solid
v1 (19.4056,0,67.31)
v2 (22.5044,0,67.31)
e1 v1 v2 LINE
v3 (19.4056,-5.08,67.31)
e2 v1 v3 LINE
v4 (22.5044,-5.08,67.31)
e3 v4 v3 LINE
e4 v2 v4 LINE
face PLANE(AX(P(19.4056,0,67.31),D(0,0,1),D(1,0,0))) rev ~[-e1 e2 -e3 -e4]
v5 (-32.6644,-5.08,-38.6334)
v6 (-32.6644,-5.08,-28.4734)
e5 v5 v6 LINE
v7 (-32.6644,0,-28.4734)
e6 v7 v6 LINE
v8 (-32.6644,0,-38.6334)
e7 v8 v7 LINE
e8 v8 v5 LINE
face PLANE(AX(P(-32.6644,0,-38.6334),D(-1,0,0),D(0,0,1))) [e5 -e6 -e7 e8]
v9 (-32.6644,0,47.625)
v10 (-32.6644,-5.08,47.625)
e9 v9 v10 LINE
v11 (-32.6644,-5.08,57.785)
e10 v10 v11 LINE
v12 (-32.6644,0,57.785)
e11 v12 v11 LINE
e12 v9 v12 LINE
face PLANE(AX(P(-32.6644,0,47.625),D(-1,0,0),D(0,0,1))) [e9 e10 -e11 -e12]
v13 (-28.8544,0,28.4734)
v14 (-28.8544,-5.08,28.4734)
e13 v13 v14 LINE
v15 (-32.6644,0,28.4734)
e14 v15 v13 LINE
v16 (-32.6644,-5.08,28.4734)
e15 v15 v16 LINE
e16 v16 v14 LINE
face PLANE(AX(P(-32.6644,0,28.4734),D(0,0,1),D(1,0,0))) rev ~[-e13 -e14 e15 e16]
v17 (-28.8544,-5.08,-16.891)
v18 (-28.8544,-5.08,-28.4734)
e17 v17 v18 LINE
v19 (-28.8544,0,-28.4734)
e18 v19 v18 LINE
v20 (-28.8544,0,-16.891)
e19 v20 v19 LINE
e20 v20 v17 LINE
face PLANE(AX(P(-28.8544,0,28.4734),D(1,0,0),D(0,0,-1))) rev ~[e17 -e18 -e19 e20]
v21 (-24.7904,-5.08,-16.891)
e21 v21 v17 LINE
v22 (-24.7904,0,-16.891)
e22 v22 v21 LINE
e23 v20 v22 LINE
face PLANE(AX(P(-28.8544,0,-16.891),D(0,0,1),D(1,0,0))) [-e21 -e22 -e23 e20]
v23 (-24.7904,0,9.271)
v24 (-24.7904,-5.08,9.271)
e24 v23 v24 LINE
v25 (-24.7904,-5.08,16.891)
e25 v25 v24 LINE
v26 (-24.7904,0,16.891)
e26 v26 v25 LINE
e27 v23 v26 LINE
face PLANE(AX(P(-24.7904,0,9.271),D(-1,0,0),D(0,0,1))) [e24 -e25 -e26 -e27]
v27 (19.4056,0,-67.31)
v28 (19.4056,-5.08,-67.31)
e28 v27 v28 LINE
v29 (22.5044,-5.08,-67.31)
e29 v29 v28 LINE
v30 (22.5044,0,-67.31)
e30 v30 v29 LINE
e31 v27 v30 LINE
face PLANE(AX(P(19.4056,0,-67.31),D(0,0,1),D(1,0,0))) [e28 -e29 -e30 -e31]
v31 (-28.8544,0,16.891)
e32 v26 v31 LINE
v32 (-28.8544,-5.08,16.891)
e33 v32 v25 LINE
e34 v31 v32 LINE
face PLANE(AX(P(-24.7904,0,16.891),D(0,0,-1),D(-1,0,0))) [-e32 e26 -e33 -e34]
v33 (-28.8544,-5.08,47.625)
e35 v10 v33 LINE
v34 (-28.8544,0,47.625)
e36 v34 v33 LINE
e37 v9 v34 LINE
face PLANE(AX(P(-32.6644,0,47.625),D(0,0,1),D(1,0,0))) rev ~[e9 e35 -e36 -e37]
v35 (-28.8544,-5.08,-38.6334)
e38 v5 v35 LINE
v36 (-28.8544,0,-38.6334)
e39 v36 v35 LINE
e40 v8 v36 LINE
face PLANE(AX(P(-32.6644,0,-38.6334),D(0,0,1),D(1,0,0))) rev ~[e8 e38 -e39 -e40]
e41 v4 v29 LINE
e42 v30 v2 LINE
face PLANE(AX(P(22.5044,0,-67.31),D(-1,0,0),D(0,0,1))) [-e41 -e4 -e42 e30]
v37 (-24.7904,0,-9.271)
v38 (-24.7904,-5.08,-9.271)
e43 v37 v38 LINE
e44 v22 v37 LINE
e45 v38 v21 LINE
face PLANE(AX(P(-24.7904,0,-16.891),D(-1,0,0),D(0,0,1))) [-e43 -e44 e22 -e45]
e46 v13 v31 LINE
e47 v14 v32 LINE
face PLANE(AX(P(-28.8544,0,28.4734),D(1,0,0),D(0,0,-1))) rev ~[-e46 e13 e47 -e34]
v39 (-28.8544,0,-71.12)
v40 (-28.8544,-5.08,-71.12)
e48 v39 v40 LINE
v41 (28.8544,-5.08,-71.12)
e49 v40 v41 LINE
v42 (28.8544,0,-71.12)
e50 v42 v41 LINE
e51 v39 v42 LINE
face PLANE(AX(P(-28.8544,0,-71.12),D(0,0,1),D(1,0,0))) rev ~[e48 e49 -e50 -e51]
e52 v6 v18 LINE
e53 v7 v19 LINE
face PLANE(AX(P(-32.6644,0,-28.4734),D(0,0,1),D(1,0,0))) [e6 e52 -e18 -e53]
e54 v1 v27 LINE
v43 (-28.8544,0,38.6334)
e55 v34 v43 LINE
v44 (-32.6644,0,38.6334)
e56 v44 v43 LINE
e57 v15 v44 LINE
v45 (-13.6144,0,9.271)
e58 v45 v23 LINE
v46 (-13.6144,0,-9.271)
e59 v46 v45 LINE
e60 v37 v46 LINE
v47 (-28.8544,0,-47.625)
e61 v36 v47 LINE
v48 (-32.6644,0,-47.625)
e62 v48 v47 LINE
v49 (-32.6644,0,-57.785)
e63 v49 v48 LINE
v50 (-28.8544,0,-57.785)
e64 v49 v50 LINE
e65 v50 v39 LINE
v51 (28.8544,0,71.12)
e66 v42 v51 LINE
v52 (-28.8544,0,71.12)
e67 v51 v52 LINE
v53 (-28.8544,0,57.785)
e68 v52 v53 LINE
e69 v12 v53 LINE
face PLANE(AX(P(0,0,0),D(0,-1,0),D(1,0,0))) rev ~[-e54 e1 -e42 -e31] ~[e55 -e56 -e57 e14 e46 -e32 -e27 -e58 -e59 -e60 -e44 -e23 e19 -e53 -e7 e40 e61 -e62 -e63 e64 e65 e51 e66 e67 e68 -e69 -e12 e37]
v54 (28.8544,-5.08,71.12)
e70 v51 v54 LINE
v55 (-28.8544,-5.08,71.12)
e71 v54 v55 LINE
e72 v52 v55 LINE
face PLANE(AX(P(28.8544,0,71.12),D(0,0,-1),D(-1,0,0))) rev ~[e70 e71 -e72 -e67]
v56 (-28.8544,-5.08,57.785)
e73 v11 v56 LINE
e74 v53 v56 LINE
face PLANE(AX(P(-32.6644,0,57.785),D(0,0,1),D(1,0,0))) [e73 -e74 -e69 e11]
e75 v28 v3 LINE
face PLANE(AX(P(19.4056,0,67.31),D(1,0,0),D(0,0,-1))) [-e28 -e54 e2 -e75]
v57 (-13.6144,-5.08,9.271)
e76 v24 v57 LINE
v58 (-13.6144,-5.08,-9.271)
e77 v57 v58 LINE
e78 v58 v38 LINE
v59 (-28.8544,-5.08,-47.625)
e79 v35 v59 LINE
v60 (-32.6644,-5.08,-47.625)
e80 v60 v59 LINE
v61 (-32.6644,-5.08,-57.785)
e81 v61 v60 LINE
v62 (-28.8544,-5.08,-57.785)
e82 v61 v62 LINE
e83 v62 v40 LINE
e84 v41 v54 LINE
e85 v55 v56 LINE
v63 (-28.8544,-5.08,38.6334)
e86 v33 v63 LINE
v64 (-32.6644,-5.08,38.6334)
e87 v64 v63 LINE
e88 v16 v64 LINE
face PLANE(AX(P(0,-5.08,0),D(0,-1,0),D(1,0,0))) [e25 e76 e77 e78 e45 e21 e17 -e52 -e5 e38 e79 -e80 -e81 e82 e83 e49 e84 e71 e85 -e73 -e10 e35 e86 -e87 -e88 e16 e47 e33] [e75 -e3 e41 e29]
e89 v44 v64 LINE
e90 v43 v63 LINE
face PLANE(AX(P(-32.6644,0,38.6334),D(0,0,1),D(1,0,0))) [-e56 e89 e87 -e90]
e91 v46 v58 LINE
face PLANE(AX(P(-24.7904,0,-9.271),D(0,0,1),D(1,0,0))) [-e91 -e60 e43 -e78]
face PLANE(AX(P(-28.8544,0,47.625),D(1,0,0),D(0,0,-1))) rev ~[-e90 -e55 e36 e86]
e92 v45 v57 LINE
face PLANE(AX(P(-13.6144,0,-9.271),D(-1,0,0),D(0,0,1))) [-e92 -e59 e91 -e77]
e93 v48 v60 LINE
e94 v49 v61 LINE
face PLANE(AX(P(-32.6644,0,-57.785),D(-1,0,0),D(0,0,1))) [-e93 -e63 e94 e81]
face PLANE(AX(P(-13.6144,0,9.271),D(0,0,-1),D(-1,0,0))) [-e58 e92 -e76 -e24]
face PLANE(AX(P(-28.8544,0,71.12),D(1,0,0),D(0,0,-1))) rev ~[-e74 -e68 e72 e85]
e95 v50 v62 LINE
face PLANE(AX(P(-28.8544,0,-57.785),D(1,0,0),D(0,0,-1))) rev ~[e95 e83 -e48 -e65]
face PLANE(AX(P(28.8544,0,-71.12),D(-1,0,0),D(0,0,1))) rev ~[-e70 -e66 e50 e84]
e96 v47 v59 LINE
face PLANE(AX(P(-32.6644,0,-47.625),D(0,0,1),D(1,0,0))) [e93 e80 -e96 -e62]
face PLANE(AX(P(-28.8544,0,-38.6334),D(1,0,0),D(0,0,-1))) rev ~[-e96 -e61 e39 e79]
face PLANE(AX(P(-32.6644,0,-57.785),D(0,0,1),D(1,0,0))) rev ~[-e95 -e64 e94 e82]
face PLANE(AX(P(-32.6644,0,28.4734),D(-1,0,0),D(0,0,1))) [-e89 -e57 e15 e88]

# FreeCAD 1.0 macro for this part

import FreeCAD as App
import Part
import Sketcher
from FreeCAD import Vector
Q = App.Units.Quantity

doc = App.newDocument("Part")
params = doc.addObject("Spreadsheet::Sheet", "Params")
for row, (alias, value) in enumerate([
    ("sketch1_height", "0.4 in"),
    ("sketch1_height2", "5.6 in"),
    ("sketch1_width", "0.15 in"),
    ("sketch1_width2", "2.272 in"),
    ("sketch1_height3", "0.525 in"),
    ("pad1_length", "0.2 in"),
    ("sketch2_height", "5.3 in"),
    ("sketch2_height2", "0.3 in"),
    ("sketch2_width", "0.44 in"),
    ("sketch2_width2", "0.16 in"),
    ("sketch2_height3", "0.73 in"),
    ("pocket1_length", "1.31 in"),
], start=1):
    params.set(f"A{row}", alias)
    params.set(f"B{row}", "=" + value)
    params.setAlias(f"B{row}", alias)

body = doc.addObject("PartDesign::Body", "Body")

sketch1 = body.newObject("Sketcher::SketchObject", "Sketch")
sketch1.AttachmentSupport = (doc.getObject("XZ_Plane"), [""])
sketch1.MapMode = "FlatFace"
sketch1.addGeometry([
    Part.LineSegment(Vector(28.9, 71.1, 0), Vector(-28.9, 71.1, 0)),
    Part.LineSegment(Vector(-28.9, 71.1, 0), Vector(-28.9, 57.8, 0)),
    Part.LineSegment(Vector(-28.9, 57.8, 0), Vector(-32.7, 57.8, 0)),
    Part.LineSegment(Vector(-32.7, 57.8, 0), Vector(-32.7, 47.6, 0)),
    Part.LineSegment(Vector(-32.7, 47.6, 0), Vector(-28.9, 47.6, 0)),
    Part.LineSegment(Vector(-28.9, 47.6, 0), Vector(-28.9, 38.6, 0)),
    Part.LineSegment(Vector(-28.9, 38.6, 0), Vector(-32.7, 38.6, 0)),
    Part.LineSegment(Vector(-32.7, 38.6, 0), Vector(-32.7, 28.5, 0)),
    Part.LineSegment(Vector(-32.7, 28.5, 0), Vector(-28.9, 28.5, 0)),
    Part.LineSegment(Vector(-28.9, 28.5, 0), Vector(-28.9, -28.5, 0)),
    Part.LineSegment(Vector(-28.9, -28.5, 0), Vector(-32.7, -28.5, 0)),
    Part.LineSegment(Vector(-32.7, -28.5, 0), Vector(-32.7, -38.6, 0)),
    Part.LineSegment(Vector(-32.7, -38.6, 0), Vector(-28.9, -38.6, 0)),
    Part.LineSegment(Vector(-28.9, -38.6, 0), Vector(-28.9, -47.6, 0)),
    Part.LineSegment(Vector(-28.9, -47.6, 0), Vector(-32.7, -47.6, 0)),
    Part.LineSegment(Vector(-32.7, -47.6, 0), Vector(-32.7, -57.8, 0)),
    Part.LineSegment(Vector(-32.7, -57.8, 0), Vector(-28.9, -57.8, 0)),
    Part.LineSegment(Vector(-28.9, -57.8, 0), Vector(-28.9, -71.1, 0)),
    Part.LineSegment(Vector(-28.9, -71.1, 0), Vector(28.9, -71.1, 0)),
    Part.LineSegment(Vector(28.9, -71.1, 0), Vector(28.9, 71.1, 0)),
], False)
sketch1.addConstraint([
    Sketcher.Constraint("Coincident", 0, 2, 1, 1),
    Sketcher.Constraint("Coincident", 1, 2, 2, 1),
    Sketcher.Constraint("Coincident", 2, 2, 3, 1),
    Sketcher.Constraint("Coincident", 3, 2, 4, 1),
    Sketcher.Constraint("Coincident", 4, 2, 5, 1),
    Sketcher.Constraint("Coincident", 5, 2, 6, 1),
    Sketcher.Constraint("Coincident", 6, 2, 7, 1),
    Sketcher.Constraint("Coincident", 7, 2, 8, 1),
    Sketcher.Constraint("Coincident", 8, 2, 9, 1),
    Sketcher.Constraint("Coincident", 9, 2, 10, 1),
    Sketcher.Constraint("Coincident", 10, 2, 11, 1),
    Sketcher.Constraint("Coincident", 11, 2, 12, 1),
    Sketcher.Constraint("Coincident", 12, 2, 13, 1),
    Sketcher.Constraint("Coincident", 13, 2, 14, 1),
    Sketcher.Constraint("Coincident", 14, 2, 15, 1),
    Sketcher.Constraint("Coincident", 15, 2, 16, 1),
    Sketcher.Constraint("Coincident", 16, 2, 17, 1),
    Sketcher.Constraint("Coincident", 17, 2, 18, 1),
    Sketcher.Constraint("Coincident", 18, 2, 19, 1),
    Sketcher.Constraint("Coincident", 19, 2, 0, 1),
    Sketcher.Constraint("Horizontal", 0),
    Sketcher.Constraint("Vertical", 1),
    Sketcher.Constraint("Horizontal", 2),
    Sketcher.Constraint("Vertical", 3),
    Sketcher.Constraint("Horizontal", 4),
    Sketcher.Constraint("Vertical", 5),
    Sketcher.Constraint("Horizontal", 6),
    Sketcher.Constraint("Vertical", 7),
    Sketcher.Constraint("Horizontal", 8),
    Sketcher.Constraint("Vertical", 9),
    Sketcher.Constraint("Horizontal", 10),
    Sketcher.Constraint("Vertical", 11),
    Sketcher.Constraint("Horizontal", 12),
    Sketcher.Constraint("Vertical", 13),
    Sketcher.Constraint("Horizontal", 14),
    Sketcher.Constraint("Vertical", 15),
    Sketcher.Constraint("Horizontal", 16),
    Sketcher.Constraint("Vertical", 17),
    Sketcher.Constraint("Horizontal", 18),
    Sketcher.Constraint("Vertical", 19),
    Sketcher.Constraint("Symmetric", 0, 2, 18, 2, -1, 1),
    Sketcher.Constraint("Symmetric", 7, 2, 10, 2, -1),
    Sketcher.Constraint("Symmetric", 5, 2, 12, 2, -1),
    Sketcher.Constraint("Symmetric", 3, 2, 14, 2, -1),
    Sketcher.Constraint("Symmetric", 1, 2, 16, 2, -1),
    Sketcher.Constraint("Vertical", 1, 2, 4, 2),
    Sketcher.Constraint("Vertical", 3, 2, 6, 2),
    Sketcher.Constraint("Vertical", 5, 2, 8, 2),
    Sketcher.Constraint("Equal", 3, 7),
    Sketcher.Constraint("DistanceY", 3, 2, 3, 1, Q("0.4 in")),
    Sketcher.Constraint("DistanceY", 19, 1, 19, 2, Q("5.6 in")),
    Sketcher.Constraint("DistanceX", 2, 2, 2, 1, Q("0.15 in")),
    Sketcher.Constraint("DistanceX", 0, 2, 0, 1, Q("2.272 in")),
    Sketcher.Constraint("DistanceY", 1, 2, 1, 1, Q("0.525 in")),
    Sketcher.Constraint("DistanceY", 5, 2, 5, 1, Q("0.354 in")),
])
sketch1.setExpression("Constraints[49]", "Params.sketch1_height")
sketch1.setExpression("Constraints[50]", "Params.sketch1_height2")
sketch1.setExpression("Constraints[51]", "Params.sketch1_width")
sketch1.setExpression("Constraints[52]", "Params.sketch1_width2")
sketch1.setExpression("Constraints[53]", "Params.sketch1_height3")
pad1 = body.newObject("PartDesign::Pad", "Pad")
pad1.Profile = sketch1
pad1.setExpression("Length", "Params.pad1_length")

sketch2 = body.newObject("Sketcher::SketchObject", "Sketch001")
sketch2.AttachmentSupport = (doc.getObject("XZ_Plane"), [""])
sketch2.MapMode = "FlatFace"
sketch2.addGeometry([
    Part.LineSegment(Vector(19.4, 67.3, 0), Vector(19.4, -67.3, 0)),
    Part.LineSegment(Vector(19.4, -67.3, 0), Vector(22.5, -67.3, 0)),
    Part.LineSegment(Vector(22.5, -67.3, 0), Vector(22.5, 67.3, 0)),
    Part.LineSegment(Vector(22.5, 67.3, 0), Vector(19.4, 67.3, 0)),
    Part.LineSegment(Vector(-13.6, -9.3, 0), Vector(-13.6, 9.3, 0)),
    Part.LineSegment(Vector(-13.6, 9.3, 0), Vector(-24.8, 9.3, 0)),
    Part.LineSegment(Vector(-24.8, 9.3, 0), Vector(-24.8, 16.9, 0)),
    Part.LineSegment(Vector(-24.8, 16.9, 0), Vector(-28.9, 16.9, 0)),
    Part.LineSegment(Vector(-28.9, 16.9, 0), Vector(-28.9, -16.9, 0)),
    Part.LineSegment(Vector(-28.9, -16.9, 0), Vector(-24.8, -16.9, 0)),
    Part.LineSegment(Vector(-24.8, -16.9, 0), Vector(-24.8, -9.3, 0)),
    Part.LineSegment(Vector(-24.8, -9.3, 0), Vector(-13.6, -9.3, 0)),
], False)
sketch2.addConstraint([
    Sketcher.Constraint("Coincident", 0, 2, 1, 1),
    Sketcher.Constraint("Coincident", 1, 2, 2, 1),
    Sketcher.Constraint("Coincident", 2, 2, 3, 1),
    Sketcher.Constraint("Coincident", 3, 2, 0, 1),
    Sketcher.Constraint("Coincident", 4, 2, 5, 1),
    Sketcher.Constraint("Coincident", 5, 2, 6, 1),
    Sketcher.Constraint("Coincident", 6, 2, 7, 1),
    Sketcher.Constraint("Coincident", 7, 2, 8, 1),
    Sketcher.Constraint("Coincident", 8, 2, 9, 1),
    Sketcher.Constraint("Coincident", 9, 2, 10, 1),
    Sketcher.Constraint("Coincident", 10, 2, 11, 1),
    Sketcher.Constraint("Coincident", 11, 2, 4, 1),
    Sketcher.Constraint("Vertical", 0),
    Sketcher.Constraint("Horizontal", 1),
    Sketcher.Constraint("Vertical", 2),
    Sketcher.Constraint("Horizontal", 3),
    Sketcher.Constraint("Vertical", 4),
    Sketcher.Constraint("Horizontal", 5),
    Sketcher.Constraint("Vertical", 6),
    Sketcher.Constraint("Horizontal", 7),
    Sketcher.Constraint("Vertical", 8),
    Sketcher.Constraint("Horizontal", 9),
    Sketcher.Constraint("Vertical", 10),
    Sketcher.Constraint("Horizontal", 11),
    Sketcher.Constraint("Symmetric", 6, 2, 9, 2, -1),
    Sketcher.Constraint("Equal", 6, 10),
    Sketcher.Constraint("DistanceY", 0, 2, 0, 1, Q("5.3 in")),
    Sketcher.Constraint("DistanceY", 6, 1, 6, 2, Q("0.3 in")),
    Sketcher.Constraint("DistanceX", 5, 2, 5, 1, Q("0.44 in")),
    Sketcher.Constraint("DistanceX", 7, 2, 7, 1, Q("0.16 in")),
    Sketcher.Constraint("DistanceY", 4, 1, 4, 2, Q("0.73 in")),
    Sketcher.Constraint("DistanceX", 4, 2, 3, 2, Q("1.3 in")),
    Sketcher.Constraint("DistanceX", 1, 1, 1, 2, Q("0.122 in")),
    Sketcher.Constraint("DistanceY", 0, 2, -1, 1, Q("2.65 in")),
    Sketcher.Constraint("DistanceX", -1, 1, 0, 2, Q("0.764 in")),
])
sketch2.setExpression("Constraints[26]", "Params.sketch2_height")
sketch2.setExpression("Constraints[27]", "Params.sketch2_height2")
sketch2.setExpression("Constraints[28]", "Params.sketch2_width")
sketch2.setExpression("Constraints[29]", "Params.sketch2_width2")
sketch2.setExpression("Constraints[30]", "Params.sketch2_height3")
pocket1 = body.newObject("PartDesign::Pocket", "Pocket")
pocket1.Profile = sketch2
pocket1.setExpression("Length", "Params.pocket1_length")
pocket1.Reversed = True

doc.recompute()
